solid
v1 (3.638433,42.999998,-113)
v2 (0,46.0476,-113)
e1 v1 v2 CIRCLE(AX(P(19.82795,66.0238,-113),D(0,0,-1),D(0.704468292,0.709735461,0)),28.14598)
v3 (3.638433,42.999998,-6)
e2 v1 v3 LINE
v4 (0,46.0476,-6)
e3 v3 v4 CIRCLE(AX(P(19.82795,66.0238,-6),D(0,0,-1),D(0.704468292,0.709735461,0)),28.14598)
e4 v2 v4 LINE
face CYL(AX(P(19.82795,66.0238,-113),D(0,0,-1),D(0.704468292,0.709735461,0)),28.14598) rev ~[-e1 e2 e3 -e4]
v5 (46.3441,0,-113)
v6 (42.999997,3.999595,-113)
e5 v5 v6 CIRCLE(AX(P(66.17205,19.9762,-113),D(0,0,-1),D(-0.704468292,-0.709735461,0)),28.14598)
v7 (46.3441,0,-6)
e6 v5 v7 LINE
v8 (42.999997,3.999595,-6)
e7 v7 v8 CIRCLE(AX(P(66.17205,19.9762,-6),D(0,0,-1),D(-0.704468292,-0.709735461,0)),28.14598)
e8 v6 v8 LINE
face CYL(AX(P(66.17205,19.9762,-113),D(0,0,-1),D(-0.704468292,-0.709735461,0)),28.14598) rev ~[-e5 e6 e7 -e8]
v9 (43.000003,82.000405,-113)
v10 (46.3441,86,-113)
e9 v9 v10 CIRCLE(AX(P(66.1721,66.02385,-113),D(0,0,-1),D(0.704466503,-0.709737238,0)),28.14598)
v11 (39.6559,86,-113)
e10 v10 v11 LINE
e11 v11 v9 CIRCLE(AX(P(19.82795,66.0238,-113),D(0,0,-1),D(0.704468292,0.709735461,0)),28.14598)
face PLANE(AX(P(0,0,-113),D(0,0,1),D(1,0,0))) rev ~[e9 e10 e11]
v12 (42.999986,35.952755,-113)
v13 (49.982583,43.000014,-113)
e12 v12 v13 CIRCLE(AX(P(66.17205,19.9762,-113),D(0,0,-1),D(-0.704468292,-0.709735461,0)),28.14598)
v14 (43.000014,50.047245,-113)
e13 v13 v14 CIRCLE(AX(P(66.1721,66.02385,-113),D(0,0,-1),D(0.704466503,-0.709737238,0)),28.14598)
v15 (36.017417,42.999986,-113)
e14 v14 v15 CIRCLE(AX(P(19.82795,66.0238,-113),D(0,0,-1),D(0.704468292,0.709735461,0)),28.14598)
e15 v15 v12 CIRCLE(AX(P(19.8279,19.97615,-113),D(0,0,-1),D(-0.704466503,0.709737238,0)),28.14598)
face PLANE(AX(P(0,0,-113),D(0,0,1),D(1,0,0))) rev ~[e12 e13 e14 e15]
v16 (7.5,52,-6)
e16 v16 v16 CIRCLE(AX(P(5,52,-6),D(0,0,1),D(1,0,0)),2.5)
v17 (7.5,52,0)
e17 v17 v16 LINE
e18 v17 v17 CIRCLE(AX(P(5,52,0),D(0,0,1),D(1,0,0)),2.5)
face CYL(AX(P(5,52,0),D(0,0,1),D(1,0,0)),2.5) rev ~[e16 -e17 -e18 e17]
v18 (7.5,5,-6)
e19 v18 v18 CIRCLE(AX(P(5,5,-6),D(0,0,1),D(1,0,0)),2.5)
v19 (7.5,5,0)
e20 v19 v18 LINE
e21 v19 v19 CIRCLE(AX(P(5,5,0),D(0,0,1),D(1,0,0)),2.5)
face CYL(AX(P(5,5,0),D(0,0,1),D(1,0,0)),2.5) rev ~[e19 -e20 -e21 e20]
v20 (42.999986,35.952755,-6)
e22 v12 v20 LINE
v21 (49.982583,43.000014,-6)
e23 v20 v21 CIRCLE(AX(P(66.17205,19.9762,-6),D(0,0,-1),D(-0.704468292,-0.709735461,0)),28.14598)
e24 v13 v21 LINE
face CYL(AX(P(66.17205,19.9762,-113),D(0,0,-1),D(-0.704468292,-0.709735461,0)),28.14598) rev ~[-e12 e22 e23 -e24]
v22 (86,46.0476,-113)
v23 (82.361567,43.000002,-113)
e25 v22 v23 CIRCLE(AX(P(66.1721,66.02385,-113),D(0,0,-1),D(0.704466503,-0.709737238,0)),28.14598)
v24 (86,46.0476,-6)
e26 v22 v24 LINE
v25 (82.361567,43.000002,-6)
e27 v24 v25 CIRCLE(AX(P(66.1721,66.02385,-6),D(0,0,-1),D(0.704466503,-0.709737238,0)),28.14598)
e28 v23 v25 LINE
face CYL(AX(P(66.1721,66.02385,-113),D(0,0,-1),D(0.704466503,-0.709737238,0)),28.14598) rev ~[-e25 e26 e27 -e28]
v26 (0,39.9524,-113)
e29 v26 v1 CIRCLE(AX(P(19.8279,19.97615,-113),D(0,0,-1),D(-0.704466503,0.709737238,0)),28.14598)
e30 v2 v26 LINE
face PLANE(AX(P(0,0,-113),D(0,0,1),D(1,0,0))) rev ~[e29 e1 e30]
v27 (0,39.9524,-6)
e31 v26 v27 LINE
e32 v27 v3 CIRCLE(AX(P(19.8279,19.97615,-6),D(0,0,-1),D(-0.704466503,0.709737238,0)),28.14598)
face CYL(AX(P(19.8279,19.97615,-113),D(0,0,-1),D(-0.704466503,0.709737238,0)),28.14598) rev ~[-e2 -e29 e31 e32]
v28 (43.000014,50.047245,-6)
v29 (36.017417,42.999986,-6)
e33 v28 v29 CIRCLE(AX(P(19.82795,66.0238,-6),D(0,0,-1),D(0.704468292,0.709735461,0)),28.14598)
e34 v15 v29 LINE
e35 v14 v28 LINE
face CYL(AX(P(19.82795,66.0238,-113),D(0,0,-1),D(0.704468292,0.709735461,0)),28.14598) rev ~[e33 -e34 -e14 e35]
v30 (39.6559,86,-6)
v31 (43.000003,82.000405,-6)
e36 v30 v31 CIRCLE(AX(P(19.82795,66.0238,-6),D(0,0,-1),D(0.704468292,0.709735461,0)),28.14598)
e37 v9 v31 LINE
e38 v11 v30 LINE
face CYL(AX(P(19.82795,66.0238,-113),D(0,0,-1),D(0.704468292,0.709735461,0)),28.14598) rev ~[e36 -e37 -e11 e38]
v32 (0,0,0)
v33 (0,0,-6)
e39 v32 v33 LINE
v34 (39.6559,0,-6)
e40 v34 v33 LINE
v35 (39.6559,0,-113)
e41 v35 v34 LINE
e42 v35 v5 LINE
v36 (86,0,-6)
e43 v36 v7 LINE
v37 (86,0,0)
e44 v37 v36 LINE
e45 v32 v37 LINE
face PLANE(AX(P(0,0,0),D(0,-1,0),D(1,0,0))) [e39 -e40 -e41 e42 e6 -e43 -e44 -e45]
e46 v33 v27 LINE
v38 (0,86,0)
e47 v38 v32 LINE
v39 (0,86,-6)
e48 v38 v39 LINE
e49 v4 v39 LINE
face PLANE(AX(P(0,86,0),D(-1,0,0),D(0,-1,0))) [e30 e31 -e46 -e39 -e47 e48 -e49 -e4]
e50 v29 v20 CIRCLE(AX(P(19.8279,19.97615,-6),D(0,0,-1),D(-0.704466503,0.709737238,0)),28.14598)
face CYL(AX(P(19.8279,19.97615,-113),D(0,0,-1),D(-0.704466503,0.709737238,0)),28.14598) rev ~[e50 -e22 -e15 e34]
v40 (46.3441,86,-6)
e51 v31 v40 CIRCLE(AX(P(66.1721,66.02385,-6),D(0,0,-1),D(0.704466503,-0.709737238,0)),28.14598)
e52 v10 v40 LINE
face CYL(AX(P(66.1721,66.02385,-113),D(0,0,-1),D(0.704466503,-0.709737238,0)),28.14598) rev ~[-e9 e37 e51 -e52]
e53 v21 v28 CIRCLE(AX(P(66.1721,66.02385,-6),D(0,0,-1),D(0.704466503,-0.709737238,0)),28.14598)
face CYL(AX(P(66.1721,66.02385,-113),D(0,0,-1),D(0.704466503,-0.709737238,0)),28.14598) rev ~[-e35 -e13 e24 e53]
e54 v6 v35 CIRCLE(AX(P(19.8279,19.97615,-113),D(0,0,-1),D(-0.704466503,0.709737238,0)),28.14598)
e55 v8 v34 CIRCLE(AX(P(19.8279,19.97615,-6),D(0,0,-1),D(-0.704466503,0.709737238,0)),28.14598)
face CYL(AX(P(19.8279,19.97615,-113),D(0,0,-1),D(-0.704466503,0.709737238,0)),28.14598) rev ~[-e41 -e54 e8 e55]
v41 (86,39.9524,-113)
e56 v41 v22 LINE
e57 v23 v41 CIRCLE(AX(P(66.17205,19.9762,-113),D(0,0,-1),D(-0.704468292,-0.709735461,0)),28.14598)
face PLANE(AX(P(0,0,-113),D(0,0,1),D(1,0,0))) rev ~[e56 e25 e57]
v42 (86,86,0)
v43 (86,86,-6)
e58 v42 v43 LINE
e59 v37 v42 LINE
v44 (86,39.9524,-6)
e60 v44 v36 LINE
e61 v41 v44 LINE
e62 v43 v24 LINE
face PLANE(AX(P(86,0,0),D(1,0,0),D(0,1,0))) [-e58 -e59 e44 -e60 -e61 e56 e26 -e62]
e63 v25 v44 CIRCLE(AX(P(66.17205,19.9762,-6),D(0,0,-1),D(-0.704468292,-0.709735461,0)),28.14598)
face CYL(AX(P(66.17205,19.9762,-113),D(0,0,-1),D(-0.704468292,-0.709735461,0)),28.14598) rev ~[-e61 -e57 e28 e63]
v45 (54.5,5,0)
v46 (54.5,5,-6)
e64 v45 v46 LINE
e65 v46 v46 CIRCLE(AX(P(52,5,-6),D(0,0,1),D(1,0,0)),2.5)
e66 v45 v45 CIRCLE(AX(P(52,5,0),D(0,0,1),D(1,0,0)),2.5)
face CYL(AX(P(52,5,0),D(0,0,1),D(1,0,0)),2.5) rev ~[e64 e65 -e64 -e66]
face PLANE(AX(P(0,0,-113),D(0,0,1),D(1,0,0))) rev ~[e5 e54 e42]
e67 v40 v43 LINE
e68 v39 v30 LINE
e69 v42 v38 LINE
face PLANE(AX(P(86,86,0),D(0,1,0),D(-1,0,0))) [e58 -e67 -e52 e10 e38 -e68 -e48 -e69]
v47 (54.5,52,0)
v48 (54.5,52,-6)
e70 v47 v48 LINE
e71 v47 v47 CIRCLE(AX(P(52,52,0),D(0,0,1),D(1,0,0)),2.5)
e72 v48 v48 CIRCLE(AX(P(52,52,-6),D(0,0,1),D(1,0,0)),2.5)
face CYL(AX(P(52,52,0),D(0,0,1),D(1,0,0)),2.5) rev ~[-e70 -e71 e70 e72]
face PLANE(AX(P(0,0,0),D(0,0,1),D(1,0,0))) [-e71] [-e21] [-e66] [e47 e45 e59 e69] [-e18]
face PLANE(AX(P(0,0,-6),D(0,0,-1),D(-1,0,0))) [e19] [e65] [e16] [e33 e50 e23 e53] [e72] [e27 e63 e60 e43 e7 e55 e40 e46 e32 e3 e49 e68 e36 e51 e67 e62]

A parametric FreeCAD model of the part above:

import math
import FreeCAD as App
import Part
import Sketcher
from FreeCAD import Vector
Q = App.Units.Quantity

doc = App.newDocument("Part")
body = doc.addObject("PartDesign::Body", "Body")

# Sketch on XY plane
sketch1 = body.newObject("Sketcher::SketchObject", "Sketch")
sketch1.AttachmentSupport = (doc.getObject("XY_Plane"), [""])
sketch1.MapMode = "FlatFace"
sketch1.addGeometry([
    Part.LineSegment(Vector(0, 86, 0), Vector(0, 0, 0)),  # 0
    Part.LineSegment(Vector(0, 0, 0), Vector(86, 0, 0)),  # 1
    Part.LineSegment(Vector(86, 0, 0), Vector(86, 86, 0)),  # 2
    Part.LineSegment(Vector(86, 86, 0), Vector(0, 86, 0)),  # 3
    Part.Circle(Vector(5, 5, 0), Vector(0, 0, 1), 2.5),  # 4
    Part.Circle(Vector(52, 5, 0), Vector(0, 0, 1), 2.5),  # 5
    Part.Circle(Vector(5, 52, 0), Vector(0, 0, 1), 2.5),  # 6
    Part.Circle(Vector(52, 52, 0), Vector(0, 0, 1), 2.5),  # 7
], False)
sketch1.addConstraint([
    Sketcher.Constraint("Coincident", 0, 2, 1, 1),
    Sketcher.Constraint("Coincident", 1, 2, 2, 1),
    Sketcher.Constraint("Coincident", 2, 2, 3, 1),
    Sketcher.Constraint("Coincident", 3, 2, 0, 1),
    Sketcher.Constraint("Vertical", 0),
    Sketcher.Constraint("Horizontal", 1),
    Sketcher.Constraint("Vertical", 2),
    Sketcher.Constraint("Horizontal", 3),
    Sketcher.Constraint("Coincident", 0, 2, -1, 1),
    Sketcher.Constraint("Equal", 4, 5),
    Sketcher.Constraint("Equal", 5, 6),
    Sketcher.Constraint("Equal", 6, 7),
    Sketcher.Constraint("Horizontal", 4, 3, 5, 3),
    Sketcher.Constraint("Horizontal", 6, 3, 7, 3),
    Sketcher.Constraint("Vertical", 4, 3, 6, 3),
    Sketcher.Constraint("Vertical", 5, 3, 7, 3),
    Sketcher.Constraint("Equal", 3, 0),
    Sketcher.Constraint("Diameter", 4, Q("5 mm")),
    Sketcher.Constraint("DistanceX", 1, 1, 1, 2, Q("86 mm")),
    Sketcher.Constraint("DistanceX", -1, 1, 4, 3, Q("5 mm")),
    Sketcher.Constraint("DistanceY", -1, 1, 4, 3, Q("5 mm")),
    Sketcher.Constraint("DistanceX", -1, 1, 5, 3, Q("52 mm")),
    Sketcher.Constraint("DistanceY", -1, 1, 6, 3, Q("52 mm")),
])
pad1 = body.newObject("PartDesign::Pad", "Pad")
pad1.Profile = sketch1
pad1.Length = 113
pad1.Reversed = True

# Sketch on XY plane
sketch2 = body.newObject("Sketcher::SketchObject", "Sketch001")
sketch2.AttachmentSupport = (doc.getObject("XY_Plane"), [""])
sketch2.MapMode = "FlatFace"
sketch2.AttachmentOffset = App.Placement(Vector(0, 0, -113), App.Rotation())
sketch2.addGeometry([
    Part.LineSegment(Vector(0, 46, 0), Vector(0, 86, 0)),  # 0
    Part.LineSegment(Vector(0, 86, 0), Vector(39.7, 86, 0)),  # 1
    Part.ArcOfCircle(Part.Circle(Vector(19.8, 66, 0), Vector(0, 0, 1), 28.1), math.radians(34.59), math.radians(45.21)),  # 2
    Part.ArcOfCircle(Part.Circle(Vector(66.2, 66, 0), Vector(0, 0, 1), 28.1), math.radians(134.79), math.radians(145.41)),  # 3
    Part.LineSegment(Vector(46.3, 86, 0), Vector(86, 86, 0)),  # 4
    Part.LineSegment(Vector(86, 86, 0), Vector(86, 46, 0)),  # 5
    Part.ArcOfCircle(Part.Circle(Vector(66.2, 66, 0), Vector(0, 0, 1), 28.1), math.radians(-54.89), math.radians(-45.21)),  # 6
    Part.ArcOfCircle(Part.Circle(Vector(66.2, 20, 0), Vector(0, 0, 1), 28.1), math.radians(45.21), math.radians(54.89)),  # 7
    Part.LineSegment(Vector(86, 40, 0), Vector(86, 0, 0)),  # 8
    Part.LineSegment(Vector(86, 0, 0), Vector(46.3, 0, 0)),  # 9
    Part.ArcOfCircle(Part.Circle(Vector(66.2, 20, 0), Vector(0, 0, 1), 28.1), math.radians(-145.41), math.radians(-134.79)),  # 10
    Part.ArcOfCircle(Part.Circle(Vector(19.8, 20, 0), Vector(0, 0, 1), 28.1), math.radians(-45.21), math.radians(-34.59)),  # 11
    Part.LineSegment(Vector(39.7, 0, 0), Vector(0, 0, 0)),  # 12
    Part.LineSegment(Vector(0, 0, 0), Vector(0, 40, 0)),  # 13
    Part.ArcOfCircle(Part.Circle(Vector(19.8, 20, 0), Vector(0, 0, 1), 28.1), math.radians(125.11), math.radians(134.79)),  # 14
    Part.ArcOfCircle(Part.Circle(Vector(19.8, 66, 0), Vector(0, 0, 1), 28.1), math.radians(-134.79), math.radians(-125.11)),  # 15
    Part.ArcOfCircle(Part.Circle(Vector(19.8, 66, 0), Vector(0, 0, 1), 28.1), math.radians(-55), math.radians(-35)),  # 16
    Part.ArcOfCircle(Part.Circle(Vector(19.8, 20, 0), Vector(0, 0, 1), 28.1), math.radians(35), math.radians(55)),  # 17
    Part.ArcOfCircle(Part.Circle(Vector(66.2, 20, 0), Vector(0, 0, 1), 28.1), math.radians(125), math.radians(145)),  # 18
    Part.ArcOfCircle(Part.Circle(Vector(66.2, 66, 0), Vector(0, 0, 1), 28.1), math.radians(-145), math.radians(-125)),  # 19
], False)
sketch2.addConstraint([
    Sketcher.Constraint("Coincident", 0, 2, 1, 1),
    Sketcher.Constraint("Coincident", 1, 2, 2, 2),
    Sketcher.Constraint("Coincident", 2, 1, 3, 2),
    Sketcher.Constraint("Coincident", 3, 1, 4, 1),
    Sketcher.Constraint("Coincident", 4, 2, 5, 1),
    Sketcher.Constraint("Coincident", 5, 2, 6, 2),
    Sketcher.Constraint("Coincident", 6, 1, 7, 2),
    Sketcher.Constraint("Coincident", 7, 1, 8, 1),
    Sketcher.Constraint("Coincident", 8, 2, 9, 1),
    Sketcher.Constraint("Coincident", 9, 2, 10, 2),
    Sketcher.Constraint("Coincident", 10, 1, 11, 2),
    Sketcher.Constraint("Coincident", 11, 1, 12, 1),
    Sketcher.Constraint("Coincident", 12, 2, 13, 1),
    Sketcher.Constraint("Coincident", 13, 2, 14, 2),
    Sketcher.Constraint("Coincident", 14, 1, 15, 2),
    Sketcher.Constraint("Coincident", 15, 1, 0, 1),
    Sketcher.Constraint("Coincident", 16, 1, 17, 2),
    Sketcher.Constraint("Coincident", 17, 1, 18, 2),
    Sketcher.Constraint("Coincident", 18, 1, 19, 2),
    Sketcher.Constraint("Coincident", 19, 1, 16, 2),
    Sketcher.Constraint("Vertical", 0),
    Sketcher.Constraint("Horizontal", 1),
    Sketcher.Constraint("Horizontal", 4),
    Sketcher.Constraint("Vertical", 5),
    Sketcher.Constraint("Vertical", 8),
    Sketcher.Constraint("Horizontal", 9),
    Sketcher.Constraint("Horizontal", 12),
    Sketcher.Constraint("Vertical", 13),
    Sketcher.Constraint("Coincident", 12, 2, -1, 1),
    Sketcher.Constraint("Coincident", 6, 3, 3, 3),
    Sketcher.Constraint("Coincident", 10, 3, 7, 3),
    Sketcher.Constraint("Coincident", 14, 3, 11, 3),
    Sketcher.Constraint("Coincident", 15, 3, 2, 3),
    Sketcher.Constraint("Coincident", 16, 3, 2, 3),
    Sketcher.Constraint("Coincident", 17, 3, 11, 3),
    Sketcher.Constraint("Coincident", 18, 3, 7, 3),
    Sketcher.Constraint("Coincident", 19, 3, 3, 3),
    Sketcher.Constraint("Equal", 2, 3),
    Sketcher.Constraint("Equal", 3, 6),
    Sketcher.Constraint("Equal", 6, 7),
    Sketcher.Constraint("Equal", 7, 10),
    Sketcher.Constraint("Equal", 10, 11),
    Sketcher.Constraint("Equal", 11, 14),
    Sketcher.Constraint("Equal", 14, 15),
    Sketcher.Constraint("Equal", 15, 16),
    Sketcher.Constraint("Equal", 16, 17),
    Sketcher.Constraint("Equal", 17, 18),
    Sketcher.Constraint("Equal", 18, 19),
    Sketcher.Constraint("PointOnObject", 0, 2, -2),
    Sketcher.Constraint("PointOnObject", 8, 2, -1),
    Sketcher.Constraint("Horizontal", 2, 3, 3, 3),
    Sketcher.Constraint("Horizontal", 10, 3, 11, 3),
    Sketcher.Constraint("Horizontal", 1, 2, 3, 1),
    Sketcher.Constraint("Horizontal", 7, 1, 13, 2),
    Sketcher.Constraint("Horizontal", 6, 1, 14, 1),
    Sketcher.Constraint("Horizontal", 5, 2, 15, 1),
    Sketcher.Constraint("Horizontal", 14, 1, 16, 1),
    Sketcher.Constraint("Vertical", 3, 1, 9, 2),
    Sketcher.Constraint("DistanceY", -1, 1, 0, 2, Q("86 mm")),
    Sketcher.Constraint("DistanceX", -1, 1, 2, 1, Q("43 mm")),
    Sketcher.Constraint("Radius", 2, Q("28.146 mm")),
    Sketcher.Constraint("DistanceX", 1, 1, 1, 2, Q("39.656 mm")),
    Sketcher.Constraint("DistanceX", -1, 1, 2, 3, Q("19.828 mm")),
])
pocket1 = body.newObject("PartDesign::Pocket", "Pocket")
pocket1.Profile = sketch2
pocket1.Length = 107
pocket1.Reversed = True

doc.recompute()
